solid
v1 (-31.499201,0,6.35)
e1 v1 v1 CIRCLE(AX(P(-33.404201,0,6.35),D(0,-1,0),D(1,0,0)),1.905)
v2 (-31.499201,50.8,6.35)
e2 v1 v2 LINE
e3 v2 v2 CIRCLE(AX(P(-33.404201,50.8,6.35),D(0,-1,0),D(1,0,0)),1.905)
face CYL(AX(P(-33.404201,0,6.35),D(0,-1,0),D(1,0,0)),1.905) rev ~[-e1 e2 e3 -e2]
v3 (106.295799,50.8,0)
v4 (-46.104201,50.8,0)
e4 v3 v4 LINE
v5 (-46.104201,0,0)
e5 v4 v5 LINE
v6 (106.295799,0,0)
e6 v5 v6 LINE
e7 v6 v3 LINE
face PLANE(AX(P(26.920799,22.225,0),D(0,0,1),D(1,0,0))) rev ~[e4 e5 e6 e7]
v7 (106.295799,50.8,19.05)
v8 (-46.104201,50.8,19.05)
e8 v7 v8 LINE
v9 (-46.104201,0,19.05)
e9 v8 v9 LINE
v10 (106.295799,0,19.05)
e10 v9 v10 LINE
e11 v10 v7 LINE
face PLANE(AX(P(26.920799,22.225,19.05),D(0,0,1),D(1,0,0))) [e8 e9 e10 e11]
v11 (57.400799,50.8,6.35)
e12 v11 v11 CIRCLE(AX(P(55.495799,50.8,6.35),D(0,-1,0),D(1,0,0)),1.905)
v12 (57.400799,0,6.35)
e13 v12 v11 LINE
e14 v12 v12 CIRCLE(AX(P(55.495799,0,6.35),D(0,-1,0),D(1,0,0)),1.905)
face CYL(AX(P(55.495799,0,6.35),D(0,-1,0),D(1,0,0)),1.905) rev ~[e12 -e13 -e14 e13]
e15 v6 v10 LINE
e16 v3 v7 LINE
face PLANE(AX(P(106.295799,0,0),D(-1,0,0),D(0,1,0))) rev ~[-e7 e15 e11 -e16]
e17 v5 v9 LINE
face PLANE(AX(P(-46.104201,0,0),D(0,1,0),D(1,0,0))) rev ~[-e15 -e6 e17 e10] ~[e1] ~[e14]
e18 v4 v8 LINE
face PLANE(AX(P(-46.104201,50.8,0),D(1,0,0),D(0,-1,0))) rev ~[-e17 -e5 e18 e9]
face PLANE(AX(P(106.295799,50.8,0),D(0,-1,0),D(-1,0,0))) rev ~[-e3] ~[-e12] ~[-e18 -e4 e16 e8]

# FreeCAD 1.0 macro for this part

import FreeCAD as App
import Part
import Sketcher
Q = App.Units.Quantity

doc = App.newDocument("Part")
params = doc.addObject("Spreadsheet::Sheet", "Params")
for row, (alias, value) in enumerate([
    ("sketch1_width", "6 in"),
    ("sketch1_height", "2 in"),
    ("pad1_length", "0.75 in"),
    ("sketch2_diameter", "0.15 in"),
    ("pocket1_length", "3 in"),
], start=1):
    params.set(f"A{row}", alias)
    params.set(f"B{row}", "=" + value)
    params.setAlias(f"B{row}", alias)

body = doc.addObject("PartDesign::Body", "Body")

sketch1 = doc.addObject("Sketcher::SketchObject", "Sketch")
body.addObject(sketch1)
sketch1.AttachmentSupport = (doc.XY_Plane, [""])
sketch1.MapMode = "FlatFace"
sketch1.addGeometry(Part.LineSegment(App.Vector(-46.104201, 50.8, 0), App.Vector(-46.104201, 0, 0)), False)
sketch1.addGeometry(Part.LineSegment(App.Vector(-46.104201, 0, 0), App.Vector(106.295799, 0, 0)), False)
sketch1.addGeometry(Part.LineSegment(App.Vector(106.295799, 0, 0), App.Vector(106.295799, 50.8, 0)), False)
sketch1.addGeometry(Part.LineSegment(App.Vector(106.295799, 50.8, 0), App.Vector(-46.104201, 50.8, 0)), False)
sketch1.addConstraint(Sketcher.Constraint("Coincident", 0, 2, 1, 1))
sketch1.addConstraint(Sketcher.Constraint("Coincident", 1, 2, 2, 1))
sketch1.addConstraint(Sketcher.Constraint("Coincident", 2, 2, 3, 1))
sketch1.addConstraint(Sketcher.Constraint("Coincident", 3, 2, 0, 1))
sketch1.addConstraint(Sketcher.Constraint("Vertical", 0))
sketch1.addConstraint(Sketcher.Constraint("Horizontal", 1))
sketch1.addConstraint(Sketcher.Constraint("Vertical", 2))
sketch1.addConstraint(Sketcher.Constraint("Horizontal", 3))
sketch1.addConstraint(Sketcher.Constraint("PointOnObject", 0, 2, -1))
sketch1.addConstraint(Sketcher.Constraint("DistanceX", 1, 1, 1, 2, Q("6 in")))
sketch1.addConstraint(Sketcher.Constraint("DistanceY", 0, 2, 0, 1, Q("2 in")))
sketch1.addConstraint(Sketcher.Constraint("DistanceX", 0, 2, -1, 1, Q("46.104201 mm")))
sketch1.setExpression("Constraints[9]", "Params.sketch1_width")
sketch1.setExpression("Constraints[10]", "Params.sketch1_height")
pad1 = doc.addObject("PartDesign::Pad", "Pad")
body.addObject(pad1)
pad1.Profile = sketch1
pad1.setExpression("Length", "Params.pad1_length")

sketch2 = doc.addObject("Sketcher::SketchObject", "Sketch001")
body.addObject(sketch2)
sketch2.AttachmentSupport = (doc.XZ_Plane, [""])
sketch2.MapMode = "FlatFace"
sketch2.addGeometry(Part.Circle(App.Vector(-33.404201, 6.35, 0), App.Vector(0, 0, 1), 1.905), False)
sketch2.addGeometry(Part.Circle(App.Vector(55.495799, 6.35, 0), App.Vector(0, 0, 1), 1.905), False)
sketch2.addConstraint(Sketcher.Constraint("Equal", 0, 1))
sketch2.addConstraint(Sketcher.Constraint("Horizontal", 0, 3, 1, 3))
sketch2.addConstraint(Sketcher.Constraint("Diameter", 0, Q("0.15 in")))
sketch2.addConstraint(Sketcher.Constraint("DistanceX", 0, 3, 1, 3, Q("3.5 in")))
sketch2.addConstraint(Sketcher.Constraint("DistanceY", -1, 1, 0, 3, Q("0.25 in")))
sketch2.addConstraint(Sketcher.Constraint("DistanceX", 0, 3, -1, 1, Q("33.404201 mm")))
sketch2.setExpression("Constraints[2]", "Params.sketch2_diameter")
pocket1 = doc.addObject("PartDesign::Pocket", "Pocket")
body.addObject(pocket1)
pocket1.Profile = sketch2
pocket1.setExpression("Length", "Params.pocket1_length")

doc.recompute()
